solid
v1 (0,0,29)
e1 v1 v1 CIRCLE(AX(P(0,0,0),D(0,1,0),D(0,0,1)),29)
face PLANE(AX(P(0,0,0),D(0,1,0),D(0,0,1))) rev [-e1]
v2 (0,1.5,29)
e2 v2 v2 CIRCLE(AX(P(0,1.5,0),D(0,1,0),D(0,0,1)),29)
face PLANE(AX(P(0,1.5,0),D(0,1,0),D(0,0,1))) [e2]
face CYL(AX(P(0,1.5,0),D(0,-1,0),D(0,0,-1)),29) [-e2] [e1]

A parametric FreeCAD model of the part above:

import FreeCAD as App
import Part
import Sketcher

V = App.Vector
Q = App.Units.Quantity

doc = App.newDocument("Part")
body = doc.addObject("PartDesign::Body", "Body")

sketch1 = body.newObject("Sketcher::SketchObject", "Sketch")
sketch1.AttachmentSupport = (doc.getObject("XZ_Plane"), [""])
sketch1.MapMode = "FlatFace"
sketch1.addGeometry(Part.Circle(V(0, 0, 0), V(0, 0, 1), 29), False)
sketch1.addConstraint([
    Sketcher.Constraint("Coincident", 0, 3, -1, 1),
    Sketcher.Constraint("Diameter", 0, Q("58 mm")),
])
pad1 = body.newObject("PartDesign::Pad", "Pad")
pad1.Profile = sketch1
pad1.Length = 1.5
pad1.Reversed = True

doc.recompute()
